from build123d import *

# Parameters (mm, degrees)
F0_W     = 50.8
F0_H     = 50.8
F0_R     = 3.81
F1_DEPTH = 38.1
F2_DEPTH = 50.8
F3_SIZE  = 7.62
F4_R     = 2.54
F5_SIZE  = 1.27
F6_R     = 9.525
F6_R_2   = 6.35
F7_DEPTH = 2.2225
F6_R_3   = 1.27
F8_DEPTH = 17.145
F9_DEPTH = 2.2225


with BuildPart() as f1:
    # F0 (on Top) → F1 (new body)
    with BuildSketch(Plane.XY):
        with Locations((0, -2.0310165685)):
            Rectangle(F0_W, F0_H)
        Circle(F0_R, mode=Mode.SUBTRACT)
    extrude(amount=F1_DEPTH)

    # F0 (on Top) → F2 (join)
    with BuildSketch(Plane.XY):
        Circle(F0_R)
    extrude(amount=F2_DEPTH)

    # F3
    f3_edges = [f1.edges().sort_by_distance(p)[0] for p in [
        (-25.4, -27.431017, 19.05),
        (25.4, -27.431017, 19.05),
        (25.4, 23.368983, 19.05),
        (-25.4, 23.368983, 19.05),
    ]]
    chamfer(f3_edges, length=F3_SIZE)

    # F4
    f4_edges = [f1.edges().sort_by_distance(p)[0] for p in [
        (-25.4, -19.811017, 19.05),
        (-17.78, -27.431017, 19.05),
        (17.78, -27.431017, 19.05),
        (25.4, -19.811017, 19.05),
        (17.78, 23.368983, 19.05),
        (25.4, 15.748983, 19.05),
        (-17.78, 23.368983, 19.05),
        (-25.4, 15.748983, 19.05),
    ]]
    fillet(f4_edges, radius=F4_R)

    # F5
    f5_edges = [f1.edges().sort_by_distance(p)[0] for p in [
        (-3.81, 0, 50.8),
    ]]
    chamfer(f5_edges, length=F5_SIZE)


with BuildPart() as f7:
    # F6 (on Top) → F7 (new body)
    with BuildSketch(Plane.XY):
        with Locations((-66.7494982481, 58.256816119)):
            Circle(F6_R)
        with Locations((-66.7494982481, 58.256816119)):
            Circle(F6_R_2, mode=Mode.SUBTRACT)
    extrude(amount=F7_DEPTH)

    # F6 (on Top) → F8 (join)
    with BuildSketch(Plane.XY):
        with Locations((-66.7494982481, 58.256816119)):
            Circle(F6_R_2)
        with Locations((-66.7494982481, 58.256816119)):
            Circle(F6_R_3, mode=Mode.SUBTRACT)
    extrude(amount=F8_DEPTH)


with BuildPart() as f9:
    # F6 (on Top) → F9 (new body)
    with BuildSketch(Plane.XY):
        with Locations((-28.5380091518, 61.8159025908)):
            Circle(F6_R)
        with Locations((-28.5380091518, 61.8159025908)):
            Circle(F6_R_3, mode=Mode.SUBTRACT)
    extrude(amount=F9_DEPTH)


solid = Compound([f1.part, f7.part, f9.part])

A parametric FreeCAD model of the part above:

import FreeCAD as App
import Part
import Sketcher
Q = App.Units.Quantity


def edges_at(feature, points):
    """Names of the edges that pass closest to the given points."""
    edges = feature.Shape.Edges
    near = lambda p: min(range(len(edges)), key=lambda i: edges[i].distToShape(Part.Vertex(*p))[0])
    return sorted({f"Edge{near(p) + 1}" for p in points})

doc = App.newDocument("Part")
body = doc.addObject("PartDesign::Body", "Body")

sketch1 = body.newObject("Sketcher::SketchObject", "Sketch")
sketch1.AttachmentSupport = (doc.getObject("XY_Plane"), [""])
sketch1.MapMode = "FlatFace"
sketch1.addGeometry([
    Part.LineSegment(App.Vector(-25.4, 23.4, 0), App.Vector(-25.4, -27.4, 0)),
    Part.LineSegment(App.Vector(-25.4, -27.4, 0), App.Vector(25.4, -27.4, 0)),
    Part.LineSegment(App.Vector(25.4, -27.4, 0), App.Vector(25.4, 23.4, 0)),
    Part.LineSegment(App.Vector(25.4, 23.4, 0), App.Vector(-25.4, 23.4, 0)),
    Part.Circle(App.Vector(0, 0, 0), App.Vector(0, 0, 1), 3.8),
], False)
sketch1.addConstraint([
    Sketcher.Constraint("Coincident", 0, 2, 1, 1),
    Sketcher.Constraint("Coincident", 1, 2, 2, 1),
    Sketcher.Constraint("Coincident", 2, 2, 3, 1),
    Sketcher.Constraint("Coincident", 3, 2, 0, 1),
    Sketcher.Constraint("Vertical", 0),
    Sketcher.Constraint("Horizontal", 1),
    Sketcher.Constraint("Vertical", 2),
    Sketcher.Constraint("Horizontal", 3),
    Sketcher.Constraint("Coincident", 4, 3, -1, 1),
    Sketcher.Constraint("Equal", 3, 0),
    Sketcher.Constraint("Diameter", 4, Q("0.3 in")),
    Sketcher.Constraint("DistanceX", 1, 1, 1, 2, Q("2 in")),
    Sketcher.Constraint("DistanceX", 0, 2, -1, 1, Q("1 in")),
    Sketcher.Constraint("DistanceY", 0, 2, -1, 1, 27.431017),
])
pad1 = body.newObject("PartDesign::Pad", "Pad")
pad1.Profile = sketch1
pad1.Length = Q("1.5 in")

sketch2 = body.newObject("Sketcher::SketchObject", "Sketch001")
sketch2.AttachmentSupport = (doc.getObject("XY_Plane"), [""])
sketch2.MapMode = "FlatFace"
sketch2.addGeometry(Part.Circle(App.Vector(0, 0, 0), App.Vector(0, 0, 1), 3.8), False)
sketch2.addConstraint([
    Sketcher.Constraint("Coincident", 0, 3, -1, 1),
    Sketcher.Constraint("Diameter", 0, Q("0.3 in")),
])
pad2 = body.newObject("PartDesign::Pad", "Pad001")
pad2.Profile = sketch2
pad2.Length = Q("2 in")
doc.recompute()

chamfer = body.newObject("PartDesign::Chamfer", "Chamfer")
chamfer.Base = (pad2, edges_at(pad2, [
    (-25.4, -27.431, 19.05),
    (25.4, -27.431, 19.05),
    (25.4, 23.369, 19.05),
    (-25.4, 23.369, 19.05),
]))
chamfer.Size = Q("0.3 in")
doc.recompute()

fillet = body.newObject("PartDesign::Fillet", "Fillet")
fillet.Base = (chamfer, edges_at(chamfer, [
    (-25.4, -19.811, 19.05),
    (-17.78, -27.431, 19.05),
    (17.78, -27.431, 19.05),
    (25.4, -19.811, 19.05),
    (17.78, 23.369, 19.05),
    (25.4, 15.749, 19.05),
    (-17.78, 23.369, 19.05),
    (-25.4, 15.749, 19.05),
]))
fillet.Radius = Q("0.1 in")
doc.recompute()

chamfer2 = body.newObject("PartDesign::Chamfer", "Chamfer001")
chamfer2.Base = (fillet, edges_at(fillet, [(-3.81, 0, 50.8)]))
chamfer2.Size = Q("0.05 in")
body2 = doc.addObject("PartDesign::Body", "Body001")

sketch3 = body2.newObject("Sketcher::SketchObject", "Sketch002")
sketch3.AttachmentSupport = (doc.getObject("XY_Plane001"), [""])
sketch3.MapMode = "FlatFace"
sketch3.addGeometry([
    Part.Circle(App.Vector(-67, 58, 0), App.Vector(0, 0, 1), 10),
    Part.Circle(App.Vector(-67, 58, 0), App.Vector(0, 0, 1), 6),
], False)
sketch3.addConstraint([
    Sketcher.Constraint("Coincident", 1, 3, 0, 3),
    Sketcher.Constraint("Diameter", 1, Q("0.5 in")),
    Sketcher.Constraint("Diameter", 0, Q("0.75 in")),
    Sketcher.Constraint("DistanceX", 0, 3, -1, 1, 66.749498),
    Sketcher.Constraint("DistanceY", -1, 1, 0, 3, 58.256816),
])
pad3 = body2.newObject("PartDesign::Pad", "Pad002")
pad3.Profile = sketch3
pad3.Length = Q("0.0875 in")

sketch4 = body2.newObject("Sketcher::SketchObject", "Sketch003")
sketch4.AttachmentSupport = (doc.getObject("XY_Plane001"), [""])
sketch4.MapMode = "FlatFace"
sketch4.addGeometry([
    Part.Circle(App.Vector(-66.7, 58.3, 0), App.Vector(0, 0, 1), 6.3),
    Part.Circle(App.Vector(-66.7, 58.3, 0), App.Vector(0, 0, 1), 1.3),
], False)
sketch4.addConstraint([
    Sketcher.Constraint("Coincident", 1, 3, 0, 3),
    Sketcher.Constraint("Diameter", 0, Q("0.5 in")),
    Sketcher.Constraint("Diameter", 1, Q("0.1 in")),
    Sketcher.Constraint("DistanceX", 0, 3, -1, 1, 66.749498),
    Sketcher.Constraint("DistanceY", -1, 1, 0, 3, 58.256816),
])
pad4 = body2.newObject("PartDesign::Pad", "Pad003")
pad4.Profile = sketch4
pad4.Length = Q("0.675 in")
body3 = doc.addObject("PartDesign::Body", "Body002")

sketch5 = body3.newObject("Sketcher::SketchObject", "Sketch004")
sketch5.AttachmentSupport = (doc.getObject("XY_Plane002"), [""])
sketch5.MapMode = "FlatFace"
sketch5.addGeometry([
    Part.Circle(App.Vector(-28.5, 61.8, 0), App.Vector(0, 0, 1), 9.5),
    Part.Circle(App.Vector(-28.5, 61.8, 0), App.Vector(0, 0, 1), 1.3),
], False)
sketch5.addConstraint([
    Sketcher.Constraint("Coincident", 1, 3, 0, 3),
    Sketcher.Constraint("Diameter", 1, Q("0.1 in")),
    Sketcher.Constraint("Diameter", 0, Q("0.75 in")),
    Sketcher.Constraint("DistanceX", 0, 3, -1, 1, 28.538009),
    Sketcher.Constraint("DistanceY", -1, 1, 0, 3, 61.815903),
])
pad5 = body3.newObject("PartDesign::Pad", "Pad004")
pad5.Profile = sketch5
pad5.Length = Q("0.0875 in")

doc.recompute()
